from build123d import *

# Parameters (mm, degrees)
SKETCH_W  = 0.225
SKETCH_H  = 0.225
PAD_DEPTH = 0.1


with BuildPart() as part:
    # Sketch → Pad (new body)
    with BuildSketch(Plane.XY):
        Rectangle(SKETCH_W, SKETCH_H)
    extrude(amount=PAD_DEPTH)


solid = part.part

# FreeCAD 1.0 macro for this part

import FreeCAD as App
import Part
import Sketcher
from FreeCAD import Vector
Q = App.Units.Quantity

doc = App.newDocument("Part")
body = doc.addObject("PartDesign::Body", "Body")

# Sketch on XY plane
sketch1 = body.newObject("Sketcher::SketchObject", "Sketch")
sketch1.AttachmentSupport = (doc.getObject("XY_Plane"), [""])
sketch1.MapMode = "FlatFace"
sketch1.addGeometry([
    Part.LineSegment(Vector(-0.11, 0.11, 0), Vector(-0.11, -0.11, 0)),
    Part.LineSegment(Vector(-0.11, -0.11, 0), Vector(0.11, -0.11, 0)),
    Part.LineSegment(Vector(0.11, -0.11, 0), Vector(0.11, 0.11, 0)),
    Part.LineSegment(Vector(0.11, 0.11, 0), Vector(-0.11, 0.11, 0)),
], False)
sketch1.addConstraint([
    Sketcher.Constraint("Coincident", 0, 2, 1, 1),
    Sketcher.Constraint("Coincident", 1, 2, 2, 1),
    Sketcher.Constraint("Coincident", 2, 2, 3, 1),
    Sketcher.Constraint("Coincident", 3, 2, 0, 1),
    Sketcher.Constraint("Vertical", 0),
    Sketcher.Constraint("Horizontal", 1),
    Sketcher.Constraint("Vertical", 2),
    Sketcher.Constraint("Horizontal", 3),
    Sketcher.Constraint("Symmetric", 0, 2, 2, 2, -1, 1),
    Sketcher.Constraint("Equal", 3, 0),
    Sketcher.Constraint("DistanceX", 1, 1, 1, 2, Q("0.225 mm")),
])
pad1 = body.newObject("PartDesign::Pad", "Pad")
pad1.Profile = sketch1
pad1.Length = 0.1

doc.recompute()
